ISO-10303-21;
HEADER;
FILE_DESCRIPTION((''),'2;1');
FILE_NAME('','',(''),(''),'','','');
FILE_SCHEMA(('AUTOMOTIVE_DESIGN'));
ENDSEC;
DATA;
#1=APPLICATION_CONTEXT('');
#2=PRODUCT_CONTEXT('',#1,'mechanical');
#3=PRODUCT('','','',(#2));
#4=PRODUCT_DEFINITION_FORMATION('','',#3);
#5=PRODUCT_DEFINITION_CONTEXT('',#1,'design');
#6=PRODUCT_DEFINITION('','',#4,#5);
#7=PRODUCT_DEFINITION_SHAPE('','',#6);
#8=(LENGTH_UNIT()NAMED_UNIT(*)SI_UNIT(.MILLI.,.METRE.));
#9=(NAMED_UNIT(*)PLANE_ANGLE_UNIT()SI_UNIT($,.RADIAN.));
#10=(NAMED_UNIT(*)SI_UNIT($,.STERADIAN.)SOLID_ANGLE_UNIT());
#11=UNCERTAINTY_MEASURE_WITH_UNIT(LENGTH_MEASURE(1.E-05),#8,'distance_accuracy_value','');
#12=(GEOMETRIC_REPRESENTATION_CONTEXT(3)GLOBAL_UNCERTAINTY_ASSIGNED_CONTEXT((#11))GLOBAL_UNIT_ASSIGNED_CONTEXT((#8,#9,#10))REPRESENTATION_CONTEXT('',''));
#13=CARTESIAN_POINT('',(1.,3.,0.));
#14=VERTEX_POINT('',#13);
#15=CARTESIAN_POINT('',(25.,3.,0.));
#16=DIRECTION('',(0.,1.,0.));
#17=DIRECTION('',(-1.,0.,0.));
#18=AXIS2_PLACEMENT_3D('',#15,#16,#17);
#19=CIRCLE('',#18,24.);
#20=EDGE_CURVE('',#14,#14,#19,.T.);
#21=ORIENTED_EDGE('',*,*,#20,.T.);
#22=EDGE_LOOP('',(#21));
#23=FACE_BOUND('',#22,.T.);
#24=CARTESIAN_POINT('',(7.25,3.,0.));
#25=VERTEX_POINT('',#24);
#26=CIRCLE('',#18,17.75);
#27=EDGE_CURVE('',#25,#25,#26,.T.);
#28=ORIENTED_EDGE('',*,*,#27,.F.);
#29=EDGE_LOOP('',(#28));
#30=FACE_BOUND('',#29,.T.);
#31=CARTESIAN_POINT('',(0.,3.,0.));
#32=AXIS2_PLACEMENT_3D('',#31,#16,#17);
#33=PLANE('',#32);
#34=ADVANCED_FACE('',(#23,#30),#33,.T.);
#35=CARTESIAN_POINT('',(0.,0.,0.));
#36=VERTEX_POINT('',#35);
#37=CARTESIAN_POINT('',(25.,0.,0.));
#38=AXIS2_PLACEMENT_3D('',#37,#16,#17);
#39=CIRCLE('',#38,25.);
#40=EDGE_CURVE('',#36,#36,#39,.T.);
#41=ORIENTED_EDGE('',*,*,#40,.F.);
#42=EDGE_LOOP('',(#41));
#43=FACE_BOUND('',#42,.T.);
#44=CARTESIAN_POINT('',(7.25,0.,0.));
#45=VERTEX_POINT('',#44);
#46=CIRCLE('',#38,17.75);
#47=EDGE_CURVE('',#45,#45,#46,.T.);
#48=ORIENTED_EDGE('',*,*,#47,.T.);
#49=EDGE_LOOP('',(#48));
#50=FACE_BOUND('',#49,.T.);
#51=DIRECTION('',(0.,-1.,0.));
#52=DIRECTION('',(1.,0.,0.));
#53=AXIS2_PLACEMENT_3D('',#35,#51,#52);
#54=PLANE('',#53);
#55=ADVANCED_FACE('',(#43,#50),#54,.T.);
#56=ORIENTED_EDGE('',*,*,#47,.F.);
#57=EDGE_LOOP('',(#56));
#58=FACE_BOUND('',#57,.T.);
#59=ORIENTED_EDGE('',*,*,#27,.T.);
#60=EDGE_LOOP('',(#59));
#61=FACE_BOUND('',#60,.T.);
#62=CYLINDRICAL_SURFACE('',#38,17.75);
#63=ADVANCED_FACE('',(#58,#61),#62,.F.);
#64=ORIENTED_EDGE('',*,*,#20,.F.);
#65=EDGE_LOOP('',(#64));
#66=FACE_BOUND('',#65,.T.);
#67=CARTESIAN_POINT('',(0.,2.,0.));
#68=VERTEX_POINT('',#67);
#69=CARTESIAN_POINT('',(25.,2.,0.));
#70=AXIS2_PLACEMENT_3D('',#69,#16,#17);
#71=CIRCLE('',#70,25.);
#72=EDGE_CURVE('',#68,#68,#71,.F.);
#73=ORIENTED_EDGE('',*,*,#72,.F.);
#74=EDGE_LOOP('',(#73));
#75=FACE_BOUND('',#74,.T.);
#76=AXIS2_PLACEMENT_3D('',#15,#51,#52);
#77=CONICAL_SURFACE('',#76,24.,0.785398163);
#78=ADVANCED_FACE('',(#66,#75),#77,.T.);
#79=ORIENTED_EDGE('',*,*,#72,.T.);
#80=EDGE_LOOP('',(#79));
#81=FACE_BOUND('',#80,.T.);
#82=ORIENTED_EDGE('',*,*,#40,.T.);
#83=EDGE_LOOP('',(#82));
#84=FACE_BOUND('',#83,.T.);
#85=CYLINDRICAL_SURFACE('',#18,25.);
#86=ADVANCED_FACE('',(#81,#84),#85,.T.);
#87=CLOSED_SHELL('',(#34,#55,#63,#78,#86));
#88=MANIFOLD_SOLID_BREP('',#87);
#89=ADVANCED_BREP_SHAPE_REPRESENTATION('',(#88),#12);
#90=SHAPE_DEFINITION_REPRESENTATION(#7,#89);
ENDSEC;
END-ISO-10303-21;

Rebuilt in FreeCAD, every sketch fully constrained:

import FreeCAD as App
import Part
import Sketcher

V = App.Vector
Q = App.Units.Quantity


def edges_at(feature, points):
    """Names of the edges that pass closest to the given points."""
    edges = feature.Shape.Edges
    near = lambda p: min(range(len(edges)), key=lambda i: edges[i].distToShape(Part.Vertex(*p))[0])
    return sorted({f"Edge{near(p) + 1}" for p in points})

doc = App.newDocument("Part")
body = doc.addObject("PartDesign::Body", "Body")

# Sketch on XY plane
sketch1 = body.newObject("Sketcher::SketchObject", "Sketch")
sketch1.AttachmentSupport = (doc.getObject("XY_Plane"), [""])
sketch1.MapMode = "FlatFace"
sketch1.addGeometry(Part.LineSegment(V(0, 3, 0), V(0, 0, 0)), False)
sketch1.addGeometry(Part.LineSegment(V(0, 0, 0), V(25, 0, 0)), False)
sketch1.addGeometry(Part.LineSegment(V(25, 0, 0), V(25, 3, 0)), False)
sketch1.addGeometry(Part.LineSegment(V(25, 3, 0), V(0, 3, 0)), False)
sketch1.addGeometry(Part.LineSegment(V(25, 3, 0), V(25, 0, 0)), True)  # axis
sketch1.addConstraint(Sketcher.Constraint("Coincident", 0, 2, 1, 1))
sketch1.addConstraint(Sketcher.Constraint("Coincident", 1, 2, 2, 1))
sketch1.addConstraint(Sketcher.Constraint("Coincident", 2, 2, 3, 1))
sketch1.addConstraint(Sketcher.Constraint("Coincident", 3, 2, 0, 1))
sketch1.addConstraint(Sketcher.Constraint("Vertical", 0))
sketch1.addConstraint(Sketcher.Constraint("Horizontal", 1))
sketch1.addConstraint(Sketcher.Constraint("Vertical", 2))
sketch1.addConstraint(Sketcher.Constraint("Horizontal", 3))
sketch1.addConstraint(Sketcher.Constraint("Vertical", 4))
sketch1.addConstraint(Sketcher.Constraint("Coincident", 0, 2, -1, 1))
sketch1.addConstraint(Sketcher.Constraint("Coincident", 4, 1, 2, 2))
sketch1.addConstraint(Sketcher.Constraint("PointOnObject", 4, 2, -1))
sketch1.addConstraint(Sketcher.Constraint("DistanceX", 1, 1, 1, 2, Q("25 mm")))
sketch1.addConstraint(Sketcher.Constraint("DistanceY", 0, 2, 0, 1, Q("3 mm")))
revolution = body.newObject("PartDesign::Revolution", "Revolution")
revolution.Profile = sketch1
revolution.ReferenceAxis = (sketch1, ["Axis0"])
revolution.Angle = 360

# Sketch on XZ plane
sketch2 = body.newObject("Sketcher::SketchObject", "Sketch001")
sketch2.AttachmentSupport = (doc.getObject("XZ_Plane"), [""])
sketch2.MapMode = "FlatFace"
sketch2.AttachmentOffset = App.Placement(V(0, 0, -3), App.Rotation())
sketch2.addGeometry(Part.Circle(V(25, 0, 0), V(0, 0, 1), 17.75), False)
sketch2.addConstraint(Sketcher.Constraint("PointOnObject", 0, 3, -1))
sketch2.addConstraint(Sketcher.Constraint("Diameter", 0, Q("35.5 mm")))
sketch2.addConstraint(Sketcher.Constraint("DistanceX", -1, 1, 0, 3, Q("25 mm")))
pocket1 = body.newObject("PartDesign::Pocket", "Pocket")
pocket1.Profile = sketch2
pocket1.Length = 3
pocket1.Reversed = True
doc.recompute()

chamfer = body.newObject("PartDesign::Chamfer", "Chamfer")
chamfer.Base = (pocket1, edges_at(pocket1, [(50, 3, 0)]))
chamfer.Size = 1

doc.recompute()
